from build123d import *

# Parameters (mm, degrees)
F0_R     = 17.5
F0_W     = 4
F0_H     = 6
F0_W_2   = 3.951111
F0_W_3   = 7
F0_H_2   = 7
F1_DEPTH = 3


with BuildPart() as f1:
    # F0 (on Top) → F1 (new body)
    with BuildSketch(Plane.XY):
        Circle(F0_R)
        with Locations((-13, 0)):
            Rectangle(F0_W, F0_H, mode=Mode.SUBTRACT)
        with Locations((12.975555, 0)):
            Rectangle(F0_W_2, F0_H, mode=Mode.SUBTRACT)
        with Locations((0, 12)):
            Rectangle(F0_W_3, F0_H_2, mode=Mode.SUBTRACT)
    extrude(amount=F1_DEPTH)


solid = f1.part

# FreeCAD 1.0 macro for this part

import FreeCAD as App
import Part
import Sketcher
Q = App.Units.Quantity


def add_polygon(sketch, points):
    """Adds a closed chain of lines whose ends are joined by coincident constraints."""
    first, n = sketch.GeometryCount, len(points)
    for a, b in zip(points, points[1:] + points[:1]):
        sketch.addGeometry(Part.LineSegment(App.Vector(*a, 0), App.Vector(*b, 0)), False)
    for i in range(n):
        sketch.addConstraint(Sketcher.Constraint("Coincident", first + i, 2, first + (i + 1) % n, 1))

doc = App.newDocument("Part")
body = doc.addObject("PartDesign::Body", "Body")

# Sketch on XY plane
sketch1 = body.newObject("Sketcher::SketchObject", "Sketch")
sketch1.AttachmentSupport = (doc.getObject("XY_Plane"), [""])
sketch1.MapMode = "FlatFace"
sketch1.addGeometry(Part.Circle(App.Vector(0, 0, 0), App.Vector(0, 0, 1), 17.5), False)  # 0
add_polygon(sketch1, [(-11, -3), (-15, -3), (-15, 3), (-11, 3)])  # lines 1-4
add_polygon(sketch1, [(15, -3), (11, -3), (11, 3), (15, 3)])  # lines 5-8
add_polygon(sketch1, [(3.5, 8.5), (-3.5, 8.5), (-3.5, 15.5), (3.5, 15.5)])  # lines 9-12
sketch1.addConstraint(Sketcher.Constraint("Horizontal", 1))
sketch1.addConstraint(Sketcher.Constraint("Vertical", 2))
sketch1.addConstraint(Sketcher.Constraint("Horizontal", 3))
sketch1.addConstraint(Sketcher.Constraint("Vertical", 4))
sketch1.addConstraint(Sketcher.Constraint("Horizontal", 5))
sketch1.addConstraint(Sketcher.Constraint("Vertical", 6))
sketch1.addConstraint(Sketcher.Constraint("Horizontal", 7))
sketch1.addConstraint(Sketcher.Constraint("Vertical", 8))
sketch1.addConstraint(Sketcher.Constraint("Horizontal", 9))
sketch1.addConstraint(Sketcher.Constraint("Vertical", 10))
sketch1.addConstraint(Sketcher.Constraint("Horizontal", 11))
sketch1.addConstraint(Sketcher.Constraint("Vertical", 12))
sketch1.addConstraint(Sketcher.Constraint("Coincident", 0, 3, -1, 1))
sketch1.addConstraint(Sketcher.Constraint("Symmetric", 3, 2, 5, 2, -1, 1))
sketch1.addConstraint(Sketcher.Constraint("Horizontal", 4, 2, 5, 2))
sketch1.addConstraint(Sketcher.Constraint("Horizontal", 3, 2, 6, 2))
sketch1.addConstraint(Sketcher.Constraint("Equal", 11, 10))
sketch1.addConstraint(Sketcher.Constraint("Diameter", 0, Q("35 mm")))
sketch1.addConstraint(Sketcher.Constraint("DistanceX", 1, 2, 1, 1, Q("4 mm")))
sketch1.addConstraint(Sketcher.Constraint("DistanceX", 9, 2, 9, 1, Q("7 mm")))
sketch1.addConstraint(Sketcher.Constraint("DistanceY", 2, 1, 2, 2, Q("6 mm")))
sketch1.addConstraint(Sketcher.Constraint("DistanceX", 1, 2, -1, 1, Q("15 mm")))
sketch1.addConstraint(Sketcher.Constraint("DistanceX", 9, 2, -1, 1, Q("3.5 mm")))
sketch1.addConstraint(Sketcher.Constraint("DistanceY", -1, 1, 9, 2, Q("8.5 mm")))
sketch1.addConstraint(Sketcher.Constraint("DistanceX", 5, 2, 5, 1, Q("3.951111 mm")))
pad1 = body.newObject("PartDesign::Pad", "Pad")
pad1.Profile = sketch1
pad1.Length = 3

doc.recompute()
